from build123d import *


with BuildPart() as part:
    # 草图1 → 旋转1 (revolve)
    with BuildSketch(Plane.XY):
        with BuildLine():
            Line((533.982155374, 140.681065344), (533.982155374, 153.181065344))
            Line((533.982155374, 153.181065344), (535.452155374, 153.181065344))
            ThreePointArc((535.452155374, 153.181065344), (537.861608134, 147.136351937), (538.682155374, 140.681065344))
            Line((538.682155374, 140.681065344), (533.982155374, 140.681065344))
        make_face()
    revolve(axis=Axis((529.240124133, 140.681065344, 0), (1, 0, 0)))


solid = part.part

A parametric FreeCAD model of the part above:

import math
import FreeCAD as App
import Part
import Sketcher

doc = App.newDocument("Part")
body = doc.addObject("PartDesign::Body", "Body")

sketch1 = doc.addObject("Sketcher::SketchObject", "Sketch")
body.addObject(sketch1)
sketch1.AttachmentSupport = (doc.XY_Plane, [""])
sketch1.MapMode = "FlatFace"
sketch1.addGeometry([
    Part.LineSegment(App.Vector(534, 153.2, 0), App.Vector(534, 140.7, 0)),
    Part.LineSegment(App.Vector(534, 140.7, 0), App.Vector(538.7, 140.7, 0)),
    Part.ArcOfCircle(Part.Circle(App.Vector(512.9, 140.7, 0), App.Vector(0, 0, 1), 25.8), math.radians(0), math.radians(29)),
    Part.LineSegment(App.Vector(535.5, 153.2, 0), App.Vector(534, 153.2, 0)),
], False)
sketch1.addGeometry(Part.LineSegment(App.Vector(512.9, 140.7, 0), App.Vector(538.7, 140.7, 0)), True)
sketch1.addConstraint([
    Sketcher.Constraint("Coincident", 0, 2, 1, 1),
    Sketcher.Constraint("Coincident", 1, 2, 2, 1),
    Sketcher.Constraint("Coincident", 2, 2, 3, 1),
    Sketcher.Constraint("Coincident", 3, 2, 0, 1),
    Sketcher.Constraint("Vertical", 0),
    Sketcher.Constraint("Horizontal", 1),
    Sketcher.Constraint("Horizontal", 3),
    Sketcher.Constraint("Horizontal", 4),
    Sketcher.Constraint("Coincident", 4, 1, 2, 3),
    Sketcher.Constraint("Coincident", 4, 2, 1, 2),
    Sketcher.Constraint("DistanceX", 1, 1, 1, 2, 4.7),
    Sketcher.Constraint("DistanceY", 0, 2, 0, 1, 12.5),
    Sketcher.Constraint("DistanceX", 3, 2, 3, 1, 1.47),
    Sketcher.Constraint("DistanceX", -1, 1, 2, 3, 512.879849),
    Sketcher.Constraint("DistanceY", -1, 1, 2, 3, 140.681065),
])
revolution = doc.addObject("PartDesign::Revolution", "Revolution")
body.addObject(revolution)
revolution.Profile = sketch1
revolution.ReferenceAxis = (sketch1, ["Axis0"])
revolution.Angle = 360

doc.recompute()
